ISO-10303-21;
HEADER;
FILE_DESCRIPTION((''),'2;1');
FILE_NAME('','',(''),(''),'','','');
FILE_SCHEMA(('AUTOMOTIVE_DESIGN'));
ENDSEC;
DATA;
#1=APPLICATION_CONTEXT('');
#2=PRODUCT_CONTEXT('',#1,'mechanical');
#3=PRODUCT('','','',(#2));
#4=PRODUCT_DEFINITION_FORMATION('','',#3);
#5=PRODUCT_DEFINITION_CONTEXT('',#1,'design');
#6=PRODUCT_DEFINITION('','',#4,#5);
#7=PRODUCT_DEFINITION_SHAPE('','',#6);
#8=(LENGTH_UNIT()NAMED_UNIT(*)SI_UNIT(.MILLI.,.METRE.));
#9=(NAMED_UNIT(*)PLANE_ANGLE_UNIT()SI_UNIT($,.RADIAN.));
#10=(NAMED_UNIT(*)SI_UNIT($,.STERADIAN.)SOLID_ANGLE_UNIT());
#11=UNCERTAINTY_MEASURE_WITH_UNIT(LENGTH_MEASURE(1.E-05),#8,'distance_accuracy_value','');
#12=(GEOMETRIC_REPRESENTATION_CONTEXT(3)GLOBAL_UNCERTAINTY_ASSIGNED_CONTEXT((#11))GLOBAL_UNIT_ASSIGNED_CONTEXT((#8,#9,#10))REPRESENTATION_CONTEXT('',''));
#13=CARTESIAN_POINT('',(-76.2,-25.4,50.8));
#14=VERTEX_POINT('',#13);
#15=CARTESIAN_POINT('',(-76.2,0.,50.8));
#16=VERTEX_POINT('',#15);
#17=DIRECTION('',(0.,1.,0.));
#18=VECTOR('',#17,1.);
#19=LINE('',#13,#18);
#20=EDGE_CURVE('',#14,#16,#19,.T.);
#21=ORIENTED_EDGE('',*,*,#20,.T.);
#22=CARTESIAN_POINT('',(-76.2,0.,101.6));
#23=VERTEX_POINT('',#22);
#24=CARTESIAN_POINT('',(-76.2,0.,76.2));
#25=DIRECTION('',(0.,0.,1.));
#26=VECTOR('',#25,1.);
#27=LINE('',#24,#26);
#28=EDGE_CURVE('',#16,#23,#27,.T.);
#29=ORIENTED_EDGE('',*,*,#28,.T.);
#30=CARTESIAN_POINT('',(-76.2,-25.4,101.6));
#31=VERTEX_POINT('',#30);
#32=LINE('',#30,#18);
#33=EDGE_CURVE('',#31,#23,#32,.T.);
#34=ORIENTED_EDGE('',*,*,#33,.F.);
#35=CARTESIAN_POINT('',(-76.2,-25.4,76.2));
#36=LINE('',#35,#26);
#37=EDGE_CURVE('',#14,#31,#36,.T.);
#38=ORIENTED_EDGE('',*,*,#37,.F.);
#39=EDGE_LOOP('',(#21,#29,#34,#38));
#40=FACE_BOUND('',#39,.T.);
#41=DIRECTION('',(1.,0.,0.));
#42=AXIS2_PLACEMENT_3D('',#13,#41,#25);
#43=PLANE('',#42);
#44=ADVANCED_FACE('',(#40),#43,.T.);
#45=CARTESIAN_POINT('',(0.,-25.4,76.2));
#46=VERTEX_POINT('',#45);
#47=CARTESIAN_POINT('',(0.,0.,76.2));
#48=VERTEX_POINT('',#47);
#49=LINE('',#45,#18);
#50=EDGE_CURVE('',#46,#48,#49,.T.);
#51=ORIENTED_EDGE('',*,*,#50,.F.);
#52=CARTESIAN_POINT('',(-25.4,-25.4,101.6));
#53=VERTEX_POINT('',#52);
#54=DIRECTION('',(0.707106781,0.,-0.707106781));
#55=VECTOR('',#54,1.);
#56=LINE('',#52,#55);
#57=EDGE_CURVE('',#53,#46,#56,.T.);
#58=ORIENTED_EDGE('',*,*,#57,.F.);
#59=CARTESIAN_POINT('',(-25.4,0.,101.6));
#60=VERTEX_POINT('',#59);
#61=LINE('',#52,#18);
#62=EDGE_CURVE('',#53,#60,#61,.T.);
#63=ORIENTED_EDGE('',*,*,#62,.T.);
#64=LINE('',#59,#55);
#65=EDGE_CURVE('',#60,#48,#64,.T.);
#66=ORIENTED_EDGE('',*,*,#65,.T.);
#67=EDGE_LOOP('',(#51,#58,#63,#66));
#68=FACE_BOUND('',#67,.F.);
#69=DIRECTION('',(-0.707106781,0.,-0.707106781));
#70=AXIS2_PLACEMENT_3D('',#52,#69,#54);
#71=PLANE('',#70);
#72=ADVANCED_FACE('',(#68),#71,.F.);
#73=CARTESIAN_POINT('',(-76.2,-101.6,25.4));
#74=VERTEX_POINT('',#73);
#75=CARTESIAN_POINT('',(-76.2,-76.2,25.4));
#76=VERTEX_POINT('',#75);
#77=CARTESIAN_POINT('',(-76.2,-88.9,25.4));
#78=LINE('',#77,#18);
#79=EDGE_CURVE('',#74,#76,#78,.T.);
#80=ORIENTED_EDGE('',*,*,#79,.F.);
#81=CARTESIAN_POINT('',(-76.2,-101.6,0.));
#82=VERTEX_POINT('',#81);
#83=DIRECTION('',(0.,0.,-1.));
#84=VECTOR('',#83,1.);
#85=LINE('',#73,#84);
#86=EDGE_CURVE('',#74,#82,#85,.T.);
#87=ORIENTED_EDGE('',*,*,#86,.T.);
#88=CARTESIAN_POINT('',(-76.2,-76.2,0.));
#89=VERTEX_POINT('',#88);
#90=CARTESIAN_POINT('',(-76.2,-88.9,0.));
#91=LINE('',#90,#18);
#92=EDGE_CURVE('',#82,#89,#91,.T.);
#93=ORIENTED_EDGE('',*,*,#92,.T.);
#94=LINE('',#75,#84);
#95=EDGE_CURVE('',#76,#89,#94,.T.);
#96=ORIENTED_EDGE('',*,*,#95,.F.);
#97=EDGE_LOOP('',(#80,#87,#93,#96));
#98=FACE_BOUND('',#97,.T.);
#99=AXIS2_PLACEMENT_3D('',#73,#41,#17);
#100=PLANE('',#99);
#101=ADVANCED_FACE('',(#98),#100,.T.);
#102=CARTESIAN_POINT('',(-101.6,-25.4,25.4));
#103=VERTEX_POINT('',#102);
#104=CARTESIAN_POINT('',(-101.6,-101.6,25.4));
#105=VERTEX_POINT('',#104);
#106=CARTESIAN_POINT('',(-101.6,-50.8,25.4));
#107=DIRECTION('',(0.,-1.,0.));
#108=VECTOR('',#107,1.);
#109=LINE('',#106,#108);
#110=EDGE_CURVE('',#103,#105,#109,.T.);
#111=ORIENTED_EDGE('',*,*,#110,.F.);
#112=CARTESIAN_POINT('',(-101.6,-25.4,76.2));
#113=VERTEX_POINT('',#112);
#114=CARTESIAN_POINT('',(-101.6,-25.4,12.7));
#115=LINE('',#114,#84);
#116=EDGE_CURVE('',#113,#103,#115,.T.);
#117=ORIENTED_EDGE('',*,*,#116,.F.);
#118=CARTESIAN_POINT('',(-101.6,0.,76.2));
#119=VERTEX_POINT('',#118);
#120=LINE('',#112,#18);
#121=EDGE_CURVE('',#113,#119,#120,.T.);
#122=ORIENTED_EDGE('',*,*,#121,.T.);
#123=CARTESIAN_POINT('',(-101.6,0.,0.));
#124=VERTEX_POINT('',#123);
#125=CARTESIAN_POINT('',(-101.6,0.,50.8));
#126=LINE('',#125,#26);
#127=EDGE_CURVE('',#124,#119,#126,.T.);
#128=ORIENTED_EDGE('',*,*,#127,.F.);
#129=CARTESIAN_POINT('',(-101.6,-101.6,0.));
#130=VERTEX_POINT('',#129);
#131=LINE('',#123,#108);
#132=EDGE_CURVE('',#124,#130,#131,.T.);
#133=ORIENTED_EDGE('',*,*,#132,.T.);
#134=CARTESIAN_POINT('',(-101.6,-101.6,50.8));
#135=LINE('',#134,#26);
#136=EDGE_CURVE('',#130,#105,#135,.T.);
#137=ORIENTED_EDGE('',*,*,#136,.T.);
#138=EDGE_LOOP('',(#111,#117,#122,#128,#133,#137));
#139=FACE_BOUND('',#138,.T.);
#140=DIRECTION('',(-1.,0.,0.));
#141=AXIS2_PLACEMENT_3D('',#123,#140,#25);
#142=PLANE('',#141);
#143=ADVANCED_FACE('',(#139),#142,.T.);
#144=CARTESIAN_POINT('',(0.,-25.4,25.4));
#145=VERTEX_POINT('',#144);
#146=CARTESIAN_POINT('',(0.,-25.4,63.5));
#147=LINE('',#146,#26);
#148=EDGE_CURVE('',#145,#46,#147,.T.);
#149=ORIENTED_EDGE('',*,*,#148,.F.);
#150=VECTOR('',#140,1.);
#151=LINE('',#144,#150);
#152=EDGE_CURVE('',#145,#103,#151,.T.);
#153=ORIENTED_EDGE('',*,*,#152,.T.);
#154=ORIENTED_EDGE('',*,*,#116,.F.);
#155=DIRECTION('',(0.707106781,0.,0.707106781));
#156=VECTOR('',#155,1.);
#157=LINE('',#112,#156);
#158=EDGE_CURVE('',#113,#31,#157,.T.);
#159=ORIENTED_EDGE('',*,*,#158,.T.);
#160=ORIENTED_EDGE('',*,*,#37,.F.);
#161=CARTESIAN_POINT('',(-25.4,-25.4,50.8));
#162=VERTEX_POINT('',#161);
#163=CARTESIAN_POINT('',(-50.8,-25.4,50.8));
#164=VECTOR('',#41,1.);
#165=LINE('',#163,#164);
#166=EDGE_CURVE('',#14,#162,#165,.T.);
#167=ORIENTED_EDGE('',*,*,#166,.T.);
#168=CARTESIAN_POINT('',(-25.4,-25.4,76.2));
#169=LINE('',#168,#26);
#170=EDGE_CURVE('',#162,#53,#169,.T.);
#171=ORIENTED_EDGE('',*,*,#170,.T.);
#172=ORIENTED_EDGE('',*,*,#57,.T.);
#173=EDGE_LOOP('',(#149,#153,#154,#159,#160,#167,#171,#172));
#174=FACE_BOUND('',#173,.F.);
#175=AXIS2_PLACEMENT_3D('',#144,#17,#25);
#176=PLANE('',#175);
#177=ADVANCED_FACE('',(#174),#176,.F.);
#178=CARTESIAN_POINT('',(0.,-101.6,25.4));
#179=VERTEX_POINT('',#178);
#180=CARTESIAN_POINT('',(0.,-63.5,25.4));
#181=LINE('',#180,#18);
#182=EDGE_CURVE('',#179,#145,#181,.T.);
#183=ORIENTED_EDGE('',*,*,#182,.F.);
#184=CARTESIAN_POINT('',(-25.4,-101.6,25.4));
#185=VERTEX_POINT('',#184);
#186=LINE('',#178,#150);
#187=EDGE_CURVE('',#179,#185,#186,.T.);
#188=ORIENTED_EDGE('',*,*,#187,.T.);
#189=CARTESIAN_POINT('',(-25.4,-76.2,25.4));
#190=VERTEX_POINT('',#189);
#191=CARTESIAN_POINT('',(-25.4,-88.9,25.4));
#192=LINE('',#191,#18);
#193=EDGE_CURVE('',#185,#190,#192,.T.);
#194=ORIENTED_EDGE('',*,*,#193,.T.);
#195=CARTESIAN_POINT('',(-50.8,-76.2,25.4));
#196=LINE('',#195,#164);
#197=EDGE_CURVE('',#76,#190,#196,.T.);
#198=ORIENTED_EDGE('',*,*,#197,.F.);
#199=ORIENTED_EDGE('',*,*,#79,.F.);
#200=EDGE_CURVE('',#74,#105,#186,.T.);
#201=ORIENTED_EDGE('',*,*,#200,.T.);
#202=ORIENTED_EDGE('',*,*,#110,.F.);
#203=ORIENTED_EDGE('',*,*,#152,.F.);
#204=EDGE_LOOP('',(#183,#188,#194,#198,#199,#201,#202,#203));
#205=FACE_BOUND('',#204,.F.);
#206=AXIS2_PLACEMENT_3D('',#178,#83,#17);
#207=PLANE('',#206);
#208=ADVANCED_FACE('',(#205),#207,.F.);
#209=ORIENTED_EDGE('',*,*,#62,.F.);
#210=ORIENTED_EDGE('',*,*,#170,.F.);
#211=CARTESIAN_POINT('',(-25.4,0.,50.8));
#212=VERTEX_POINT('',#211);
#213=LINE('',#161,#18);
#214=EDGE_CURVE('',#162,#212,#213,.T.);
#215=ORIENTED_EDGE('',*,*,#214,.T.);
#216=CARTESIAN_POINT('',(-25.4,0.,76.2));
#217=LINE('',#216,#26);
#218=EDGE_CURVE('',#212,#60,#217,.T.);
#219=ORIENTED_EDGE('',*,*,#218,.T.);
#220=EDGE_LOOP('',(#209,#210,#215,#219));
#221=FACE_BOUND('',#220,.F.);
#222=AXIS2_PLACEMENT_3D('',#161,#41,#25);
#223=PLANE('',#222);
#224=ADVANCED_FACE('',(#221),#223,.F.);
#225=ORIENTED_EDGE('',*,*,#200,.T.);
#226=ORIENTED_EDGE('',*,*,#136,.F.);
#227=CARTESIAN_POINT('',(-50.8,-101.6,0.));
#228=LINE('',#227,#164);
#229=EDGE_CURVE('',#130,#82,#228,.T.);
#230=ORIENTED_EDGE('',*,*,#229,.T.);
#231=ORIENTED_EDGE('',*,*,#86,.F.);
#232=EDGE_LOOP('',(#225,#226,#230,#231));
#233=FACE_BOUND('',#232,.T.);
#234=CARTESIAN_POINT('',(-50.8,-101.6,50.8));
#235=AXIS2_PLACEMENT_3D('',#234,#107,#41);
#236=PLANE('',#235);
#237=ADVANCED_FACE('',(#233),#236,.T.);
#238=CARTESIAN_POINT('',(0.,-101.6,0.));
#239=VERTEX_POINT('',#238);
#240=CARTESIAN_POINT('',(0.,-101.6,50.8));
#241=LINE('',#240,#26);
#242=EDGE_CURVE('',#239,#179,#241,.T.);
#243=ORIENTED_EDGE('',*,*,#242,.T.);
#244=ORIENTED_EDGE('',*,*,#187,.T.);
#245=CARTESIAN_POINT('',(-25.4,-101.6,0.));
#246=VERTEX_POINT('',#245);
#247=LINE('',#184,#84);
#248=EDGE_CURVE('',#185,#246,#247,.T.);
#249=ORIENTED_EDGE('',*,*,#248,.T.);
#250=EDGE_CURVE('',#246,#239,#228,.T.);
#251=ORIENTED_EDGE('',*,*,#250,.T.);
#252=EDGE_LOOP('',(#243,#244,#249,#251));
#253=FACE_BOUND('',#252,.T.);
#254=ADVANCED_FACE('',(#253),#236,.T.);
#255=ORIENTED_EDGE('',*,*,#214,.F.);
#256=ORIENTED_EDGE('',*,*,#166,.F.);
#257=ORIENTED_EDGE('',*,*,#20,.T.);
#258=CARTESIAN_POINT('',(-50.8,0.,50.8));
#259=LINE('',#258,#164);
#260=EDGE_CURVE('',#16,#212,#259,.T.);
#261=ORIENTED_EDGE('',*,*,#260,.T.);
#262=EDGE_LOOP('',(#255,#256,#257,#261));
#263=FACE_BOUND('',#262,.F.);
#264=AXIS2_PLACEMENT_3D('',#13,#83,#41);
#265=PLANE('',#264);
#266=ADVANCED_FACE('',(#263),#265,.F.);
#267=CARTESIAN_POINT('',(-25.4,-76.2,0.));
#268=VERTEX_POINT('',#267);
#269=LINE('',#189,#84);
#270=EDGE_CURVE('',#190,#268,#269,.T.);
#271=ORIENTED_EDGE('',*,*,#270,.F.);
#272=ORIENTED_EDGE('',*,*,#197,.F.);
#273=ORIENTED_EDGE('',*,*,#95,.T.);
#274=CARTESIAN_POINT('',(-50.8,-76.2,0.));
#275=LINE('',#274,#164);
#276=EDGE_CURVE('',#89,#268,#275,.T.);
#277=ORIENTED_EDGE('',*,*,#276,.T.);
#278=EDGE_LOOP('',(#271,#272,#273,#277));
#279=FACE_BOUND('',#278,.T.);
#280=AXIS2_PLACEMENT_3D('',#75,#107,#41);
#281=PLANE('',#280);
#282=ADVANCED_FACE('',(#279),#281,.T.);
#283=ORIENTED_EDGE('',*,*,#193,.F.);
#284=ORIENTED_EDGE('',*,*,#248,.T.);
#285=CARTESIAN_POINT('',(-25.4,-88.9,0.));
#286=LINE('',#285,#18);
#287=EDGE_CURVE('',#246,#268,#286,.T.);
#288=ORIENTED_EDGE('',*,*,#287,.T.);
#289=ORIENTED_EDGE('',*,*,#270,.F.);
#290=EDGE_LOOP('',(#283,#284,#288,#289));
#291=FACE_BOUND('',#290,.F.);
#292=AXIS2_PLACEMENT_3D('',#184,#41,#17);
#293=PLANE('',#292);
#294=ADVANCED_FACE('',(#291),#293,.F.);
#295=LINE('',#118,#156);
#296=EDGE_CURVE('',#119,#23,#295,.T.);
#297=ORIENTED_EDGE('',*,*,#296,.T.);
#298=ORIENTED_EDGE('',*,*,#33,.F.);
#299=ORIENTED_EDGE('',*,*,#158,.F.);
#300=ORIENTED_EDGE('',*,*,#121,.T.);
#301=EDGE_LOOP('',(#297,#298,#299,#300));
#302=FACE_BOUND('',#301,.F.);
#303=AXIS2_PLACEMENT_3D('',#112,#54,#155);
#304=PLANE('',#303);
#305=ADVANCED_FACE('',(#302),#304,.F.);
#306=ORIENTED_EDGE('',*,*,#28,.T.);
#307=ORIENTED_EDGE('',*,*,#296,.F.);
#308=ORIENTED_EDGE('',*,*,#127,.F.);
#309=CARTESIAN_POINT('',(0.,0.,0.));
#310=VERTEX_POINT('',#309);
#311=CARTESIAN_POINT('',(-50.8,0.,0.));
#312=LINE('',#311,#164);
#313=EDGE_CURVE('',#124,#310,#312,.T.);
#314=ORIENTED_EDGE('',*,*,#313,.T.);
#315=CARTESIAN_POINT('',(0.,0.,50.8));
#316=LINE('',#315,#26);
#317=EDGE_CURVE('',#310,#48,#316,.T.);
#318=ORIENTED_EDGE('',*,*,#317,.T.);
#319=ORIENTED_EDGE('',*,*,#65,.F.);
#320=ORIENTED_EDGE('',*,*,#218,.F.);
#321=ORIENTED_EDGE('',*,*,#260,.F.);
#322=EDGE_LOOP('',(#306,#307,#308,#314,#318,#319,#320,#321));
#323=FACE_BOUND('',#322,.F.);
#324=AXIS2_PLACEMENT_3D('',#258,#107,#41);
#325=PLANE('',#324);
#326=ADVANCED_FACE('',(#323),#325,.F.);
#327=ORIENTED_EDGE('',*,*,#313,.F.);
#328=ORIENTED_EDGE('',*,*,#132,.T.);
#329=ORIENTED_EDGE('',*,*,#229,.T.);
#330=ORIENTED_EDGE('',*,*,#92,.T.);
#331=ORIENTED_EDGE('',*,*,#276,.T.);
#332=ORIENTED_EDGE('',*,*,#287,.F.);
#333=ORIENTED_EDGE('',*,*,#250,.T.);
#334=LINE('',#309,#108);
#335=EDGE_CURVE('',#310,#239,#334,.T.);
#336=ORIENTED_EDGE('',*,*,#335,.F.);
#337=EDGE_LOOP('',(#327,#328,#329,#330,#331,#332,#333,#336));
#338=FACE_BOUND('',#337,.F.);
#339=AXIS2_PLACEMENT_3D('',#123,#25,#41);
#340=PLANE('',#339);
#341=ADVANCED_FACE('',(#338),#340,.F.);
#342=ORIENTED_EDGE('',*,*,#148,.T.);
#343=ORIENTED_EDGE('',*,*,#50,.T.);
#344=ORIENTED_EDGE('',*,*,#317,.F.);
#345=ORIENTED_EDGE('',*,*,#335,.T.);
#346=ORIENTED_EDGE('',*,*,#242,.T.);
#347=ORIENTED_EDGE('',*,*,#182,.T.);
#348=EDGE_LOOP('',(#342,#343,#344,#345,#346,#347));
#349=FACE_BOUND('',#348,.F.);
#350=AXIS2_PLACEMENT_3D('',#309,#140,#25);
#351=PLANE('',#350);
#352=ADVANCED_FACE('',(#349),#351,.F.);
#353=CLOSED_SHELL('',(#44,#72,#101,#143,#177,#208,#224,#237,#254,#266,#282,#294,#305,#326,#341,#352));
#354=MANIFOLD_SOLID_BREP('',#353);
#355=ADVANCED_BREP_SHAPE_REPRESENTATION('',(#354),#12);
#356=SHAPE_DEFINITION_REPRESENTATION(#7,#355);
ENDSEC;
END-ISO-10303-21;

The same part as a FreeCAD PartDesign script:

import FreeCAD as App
import Part
import Sketcher
from FreeCAD import Vector
Q = App.Units.Quantity


def add_polygon(sketch, points):
    """Adds a closed chain of lines whose ends are joined by coincident constraints."""
    first, n = sketch.GeometryCount, len(points)
    for a, b in zip(points, points[1:] + points[:1]):
        sketch.addGeometry(Part.LineSegment(App.Vector(*a, 0), App.Vector(*b, 0)), False)
    for i in range(n):
        sketch.addConstraint(Sketcher.Constraint("Coincident", first + i, 2, first + (i + 1) % n, 1))

doc = App.newDocument("Part")
body = doc.addObject("PartDesign::Body", "Body")

sketch1 = doc.addObject("Sketcher::SketchObject", "Sketch")
body.addObject(sketch1)
sketch1.AttachmentSupport = (doc.XZ_Plane, [""])
sketch1.MapMode = "FlatFace"
add_polygon(sketch1, [(-101.6, 101.6), (-101.6, 0), (0, 0), (0, 101.6)])
sketch1.addConstraint([
    Sketcher.Constraint("Vertical", 0),
    Sketcher.Constraint("Horizontal", 1),
    Sketcher.Constraint("Vertical", 2),
    Sketcher.Constraint("Horizontal", 3),
    Sketcher.Constraint("Coincident", 1, 2, -1, 1),
    Sketcher.Constraint("Equal", 3, 0),
    Sketcher.Constraint("DistanceX", 1, 1, 1, 2, Q("4 in")),
])
pad1 = doc.addObject("PartDesign::Pad", "Pad")
body.addObject(pad1)
pad1.Profile = sketch1
pad1.Length = Q("4 in")

sketch2 = doc.addObject("Sketcher::SketchObject", "Sketch001")
body.addObject(sketch2)
sketch2.AttachmentSupport = (doc.YZ_Plane, [""])
sketch2.MapMode = "FlatFace"
add_polygon(sketch2, [(-101.6, 101.6), (-101.6, 25.4), (-25.4, 25.4), (-25.4, 101.6)])
sketch2.addConstraint([
    Sketcher.Constraint("Vertical", 0),
    Sketcher.Constraint("Horizontal", 1),
    Sketcher.Constraint("Vertical", 2),
    Sketcher.Constraint("Horizontal", 3),
    Sketcher.Constraint("Equal", 3, 0),
    Sketcher.Constraint("DistanceX", 1, 1, 1, 2, Q("3 in")),
    Sketcher.Constraint("DistanceX", 0, 2, -1, 1, Q("4 in")),
    Sketcher.Constraint("DistanceY", -1, 1, 0, 2, Q("1 in")),
])
pocket1 = doc.addObject("PartDesign::Pocket", "Pocket")
body.addObject(pocket1)
pocket1.Profile = sketch2
pocket1.Length = Q("4.88 in")

sketch3 = doc.addObject("Sketcher::SketchObject", "Sketch002")
body.addObject(sketch3)
sketch3.AttachmentSupport = (doc.XZ_Plane, [""])
sketch3.MapMode = "FlatFace"
sketch3.AttachmentOffset = App.Placement(Vector(0, 0, 1 * 25.4), App.Rotation())
add_polygon(sketch3, [(-76.2, 101.6), (-76.2, 50.8), (-25.4, 50.8), (-25.4, 101.6)])
sketch3.addConstraint([
    Sketcher.Constraint("Vertical", 0),
    Sketcher.Constraint("Horizontal", 1),
    Sketcher.Constraint("Vertical", 2),
    Sketcher.Constraint("Horizontal", 3),
    Sketcher.Constraint("Equal", 3, 0),
    Sketcher.Constraint("DistanceX", 1, 1, 1, 2, Q("2 in")),
    Sketcher.Constraint("DistanceX", 0, 2, -1, 1, Q("3 in")),
    Sketcher.Constraint("DistanceY", -1, 1, 0, 2, Q("2 in")),
])
pocket2 = doc.addObject("PartDesign::Pocket", "Pocket001")
body.addObject(pocket2)
pocket2.Profile = sketch3
pocket2.Length = Q("1 in")

sketch4 = doc.addObject("Sketcher::SketchObject", "Sketch003")
body.addObject(sketch4)
sketch4.AttachmentSupport = (doc.XY_Plane, [""])
sketch4.MapMode = "FlatFace"
sketch4.AttachmentOffset = App.Placement(Vector(0, 0, 1 * 25.4), App.Rotation())
add_polygon(sketch4, [(-76.2, -76.2), (-76.2, -101.6), (-25.4, -101.6), (-25.4, -76.2)])
sketch4.addConstraint([
    Sketcher.Constraint("Vertical", 0),
    Sketcher.Constraint("Horizontal", 1),
    Sketcher.Constraint("Vertical", 2),
    Sketcher.Constraint("Horizontal", 3),
    Sketcher.Constraint("DistanceX", 1, 1, 1, 2, Q("2 in")),
    Sketcher.Constraint("DistanceY", 0, 2, 0, 1, Q("1 in")),
    Sketcher.Constraint("DistanceX", 0, 2, -1, 1, Q("3 in")),
    Sketcher.Constraint("DistanceY", 0, 2, -1, 1, Q("4 in")),
])
pocket3 = doc.addObject("PartDesign::Pocket", "Pocket002")
body.addObject(pocket3)
pocket3.Profile = sketch4
pocket3.Length = Q("1 in")

sketch5 = doc.addObject("Sketcher::SketchObject", "Sketch004")
body.addObject(sketch5)
sketch5.AttachmentSupport = (doc.XZ_Plane, [""])
sketch5.MapMode = "FlatFace"
sketch5.AttachmentOffset = App.Placement(Vector(0, 0, 1 * 25.4), App.Rotation())
add_polygon(sketch5, [(-76.2, 101.6), (-101.6, 101.6), (-101.6, 76.2)])
sketch5.addConstraint([
    Sketcher.Constraint("Horizontal", 0),
    Sketcher.Constraint("Vertical", 1),
    Sketcher.Constraint("Equal", 0, 1),
    Sketcher.Constraint("DistanceX", 0, 2, 0, 1, Q("1 in")),
    Sketcher.Constraint("DistanceX", 0, 2, -1, 1, Q("4 in")),
    Sketcher.Constraint("DistanceY", -1, 1, 0, 2, Q("4 in")),
])
pocket4 = doc.addObject("PartDesign::Pocket", "Pocket003")
body.addObject(pocket4)
pocket4.Profile = sketch5
pocket4.Length = Q("1 in")

sketch6 = doc.addObject("Sketcher::SketchObject", "Sketch005")
body.addObject(sketch6)
sketch6.AttachmentSupport = (doc.XZ_Plane, [""])
sketch6.MapMode = "FlatFace"
sketch6.AttachmentOffset = App.Placement(Vector(0, 0, 1 * 25.4), App.Rotation())
add_polygon(sketch6, [(0, 101.6), (-25.4, 101.6), (0, 76.2)])
sketch6.addConstraint([
    Sketcher.Constraint("Horizontal", 0),
    Sketcher.Constraint("Vertical", 2),
    Sketcher.Constraint("PointOnObject", 1, 2, -2),
    Sketcher.Constraint("Equal", 0, 2),
    Sketcher.Constraint("DistanceX", 0, 2, 0, 1, Q("1 in")),
    Sketcher.Constraint("DistanceY", -1, 1, 0, 2, Q("4 in")),
])
pocket5 = doc.addObject("PartDesign::Pocket", "Pocket004")
body.addObject(pocket5)
pocket5.Profile = sketch6
pocket5.Length = Q("1 in")

doc.recompute()
